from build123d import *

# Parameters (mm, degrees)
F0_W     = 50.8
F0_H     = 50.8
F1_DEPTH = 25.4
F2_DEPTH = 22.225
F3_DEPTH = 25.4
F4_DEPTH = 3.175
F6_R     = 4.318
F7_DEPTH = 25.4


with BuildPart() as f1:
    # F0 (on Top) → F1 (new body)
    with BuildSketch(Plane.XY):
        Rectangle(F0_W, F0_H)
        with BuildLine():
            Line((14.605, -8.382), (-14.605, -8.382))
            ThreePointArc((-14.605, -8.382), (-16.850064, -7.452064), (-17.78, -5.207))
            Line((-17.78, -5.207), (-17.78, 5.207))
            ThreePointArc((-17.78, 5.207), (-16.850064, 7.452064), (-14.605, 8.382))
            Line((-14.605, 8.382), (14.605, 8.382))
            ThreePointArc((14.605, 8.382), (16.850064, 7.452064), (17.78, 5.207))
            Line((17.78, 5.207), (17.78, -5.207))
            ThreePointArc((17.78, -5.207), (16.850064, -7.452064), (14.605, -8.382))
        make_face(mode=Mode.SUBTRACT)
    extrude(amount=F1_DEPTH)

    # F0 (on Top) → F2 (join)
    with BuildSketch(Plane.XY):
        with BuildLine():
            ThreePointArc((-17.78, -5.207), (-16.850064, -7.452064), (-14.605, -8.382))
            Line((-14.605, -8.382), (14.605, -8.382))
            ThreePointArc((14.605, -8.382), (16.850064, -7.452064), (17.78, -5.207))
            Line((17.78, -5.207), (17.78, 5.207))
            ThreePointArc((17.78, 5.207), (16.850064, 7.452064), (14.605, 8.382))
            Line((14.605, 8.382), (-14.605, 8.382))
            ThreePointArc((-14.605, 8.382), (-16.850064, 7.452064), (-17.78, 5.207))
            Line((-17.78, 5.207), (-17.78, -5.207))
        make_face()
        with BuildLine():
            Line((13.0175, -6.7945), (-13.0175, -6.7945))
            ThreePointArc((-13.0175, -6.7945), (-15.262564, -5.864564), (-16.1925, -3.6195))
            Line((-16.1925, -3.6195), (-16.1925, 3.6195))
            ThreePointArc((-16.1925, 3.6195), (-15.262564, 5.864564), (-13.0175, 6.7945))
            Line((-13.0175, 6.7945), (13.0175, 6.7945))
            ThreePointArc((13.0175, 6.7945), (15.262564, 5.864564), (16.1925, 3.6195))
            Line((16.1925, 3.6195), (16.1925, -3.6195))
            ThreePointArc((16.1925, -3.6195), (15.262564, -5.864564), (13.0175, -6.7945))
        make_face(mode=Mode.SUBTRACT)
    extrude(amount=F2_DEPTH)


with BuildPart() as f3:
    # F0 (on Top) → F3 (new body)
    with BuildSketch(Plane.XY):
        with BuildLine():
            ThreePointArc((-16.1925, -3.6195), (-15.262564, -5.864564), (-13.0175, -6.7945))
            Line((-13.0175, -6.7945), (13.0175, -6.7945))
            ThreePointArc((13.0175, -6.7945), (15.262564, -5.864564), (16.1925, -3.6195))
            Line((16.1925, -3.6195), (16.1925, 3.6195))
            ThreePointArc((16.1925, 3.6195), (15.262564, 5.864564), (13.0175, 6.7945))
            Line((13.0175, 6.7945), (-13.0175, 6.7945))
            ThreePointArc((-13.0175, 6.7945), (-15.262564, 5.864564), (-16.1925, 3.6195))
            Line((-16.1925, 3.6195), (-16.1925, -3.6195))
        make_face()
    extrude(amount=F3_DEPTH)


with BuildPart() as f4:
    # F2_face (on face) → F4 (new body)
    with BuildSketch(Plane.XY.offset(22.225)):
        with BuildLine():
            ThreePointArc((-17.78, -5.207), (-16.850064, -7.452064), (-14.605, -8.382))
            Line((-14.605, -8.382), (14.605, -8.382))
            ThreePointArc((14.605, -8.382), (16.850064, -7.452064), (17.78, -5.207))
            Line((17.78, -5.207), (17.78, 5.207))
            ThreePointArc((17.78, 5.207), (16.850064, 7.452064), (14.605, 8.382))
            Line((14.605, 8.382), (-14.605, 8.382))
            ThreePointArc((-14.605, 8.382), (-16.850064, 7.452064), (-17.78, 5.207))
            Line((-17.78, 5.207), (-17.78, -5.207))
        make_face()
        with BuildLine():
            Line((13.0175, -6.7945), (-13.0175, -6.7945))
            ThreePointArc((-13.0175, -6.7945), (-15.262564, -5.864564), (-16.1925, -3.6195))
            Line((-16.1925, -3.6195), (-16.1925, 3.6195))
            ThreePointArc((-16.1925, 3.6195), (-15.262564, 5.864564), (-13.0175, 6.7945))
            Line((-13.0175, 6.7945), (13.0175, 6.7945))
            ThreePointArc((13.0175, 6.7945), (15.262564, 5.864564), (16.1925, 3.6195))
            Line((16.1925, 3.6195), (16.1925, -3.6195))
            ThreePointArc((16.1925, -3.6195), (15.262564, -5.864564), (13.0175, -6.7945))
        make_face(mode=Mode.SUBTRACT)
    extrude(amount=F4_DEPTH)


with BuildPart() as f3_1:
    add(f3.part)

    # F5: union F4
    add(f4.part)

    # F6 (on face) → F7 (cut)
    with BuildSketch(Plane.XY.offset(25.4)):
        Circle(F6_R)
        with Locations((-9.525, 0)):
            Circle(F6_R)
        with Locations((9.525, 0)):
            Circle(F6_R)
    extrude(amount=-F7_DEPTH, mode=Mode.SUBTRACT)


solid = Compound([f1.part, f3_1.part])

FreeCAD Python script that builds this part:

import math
import FreeCAD as App
import Part
import Sketcher
from FreeCAD import Vector
Q = App.Units.Quantity


def add_polygon(sketch, points):
    """Adds a closed chain of lines whose ends are joined by coincident constraints."""
    first, n = sketch.GeometryCount, len(points)
    for a, b in zip(points, points[1:] + points[:1]):
        sketch.addGeometry(Part.LineSegment(App.Vector(*a, 0), App.Vector(*b, 0)), False)
    for i in range(n):
        sketch.addConstraint(Sketcher.Constraint("Coincident", first + i, 2, first + (i + 1) % n, 1))

doc = App.newDocument("Part")
body = doc.addObject("PartDesign::Body", "Body")

# Sketch on XY plane
sketch1 = doc.addObject("Sketcher::SketchObject", "Sketch")
body.addObject(sketch1)
sketch1.AttachmentSupport = (doc.XY_Plane, [""])
sketch1.MapMode = "FlatFace"
add_polygon(sketch1, [(-25.4, 25.4), (-25.4, -25.4), (25.4, -25.4), (25.4, 25.4)])  # lines 0-3
sketch1.addGeometry(Part.ArcOfCircle(Part.Circle(Vector(14.6, -5.2, 0), Vector(0, 0, 1), 3.2), math.radians(-90), math.radians(0)), False)  # 4
sketch1.addGeometry(Part.LineSegment(Vector(14.6, -8.4, 0), Vector(-14.6, -8.4, 0)), False)  # 5
sketch1.addGeometry(Part.ArcOfCircle(Part.Circle(Vector(-14.6, -5.2, 0), Vector(0, 0, 1), 3.2), math.radians(-180), math.radians(-90)), False)  # 6
sketch1.addGeometry(Part.LineSegment(Vector(-17.8, -5.2, 0), Vector(-17.8, 5.2, 0)), False)  # 7
sketch1.addGeometry(Part.ArcOfCircle(Part.Circle(Vector(-14.6, 5.2, 0), Vector(0, 0, 1), 3.2), math.radians(90), math.radians(180)), False)  # 8
sketch1.addGeometry(Part.LineSegment(Vector(-14.6, 8.4, 0), Vector(14.6, 8.4, 0)), False)  # 9
sketch1.addGeometry(Part.ArcOfCircle(Part.Circle(Vector(14.6, 5.2, 0), Vector(0, 0, 1), 3.2), math.radians(0), math.radians(90)), False)  # 10
sketch1.addGeometry(Part.LineSegment(Vector(17.8, 5.2, 0), Vector(17.8, -5.2, 0)), False)  # 11
sketch1.addConstraint(Sketcher.Constraint("Tangent", 4, 1, 5, 1))
sketch1.addConstraint(Sketcher.Constraint("Tangent", 5, 2, 6, 2))
sketch1.addConstraint(Sketcher.Constraint("Tangent", 6, 1, 7, 1))
sketch1.addConstraint(Sketcher.Constraint("Tangent", 7, 2, 8, 2))
sketch1.addConstraint(Sketcher.Constraint("Tangent", 8, 1, 9, 1))
sketch1.addConstraint(Sketcher.Constraint("Tangent", 9, 2, 10, 2))
sketch1.addConstraint(Sketcher.Constraint("Tangent", 10, 1, 11, 1))
sketch1.addConstraint(Sketcher.Constraint("Tangent", 11, 2, 4, 2))
sketch1.addConstraint(Sketcher.Constraint("Vertical", 0))
sketch1.addConstraint(Sketcher.Constraint("Horizontal", 1))
sketch1.addConstraint(Sketcher.Constraint("Vertical", 2))
sketch1.addConstraint(Sketcher.Constraint("Horizontal", 3))
sketch1.addConstraint(Sketcher.Constraint("Horizontal", 5))
sketch1.addConstraint(Sketcher.Constraint("Vertical", 7))
sketch1.addConstraint(Sketcher.Constraint("Horizontal", 9))
sketch1.addConstraint(Sketcher.Constraint("Vertical", 11))
sketch1.addConstraint(Sketcher.Constraint("Equal", 4, 6))
sketch1.addConstraint(Sketcher.Constraint("Equal", 6, 8))
sketch1.addConstraint(Sketcher.Constraint("Equal", 8, 10))
sketch1.addConstraint(Sketcher.Constraint("Symmetric", 4, 3, 8, 3, -1, 1))
sketch1.addConstraint(Sketcher.Constraint("Symmetric", 0, 2, 2, 2, -1, 1))
sketch1.addConstraint(Sketcher.Constraint("Equal", 3, 0))
sketch1.addConstraint(Sketcher.Constraint("DistanceX", 1, 1, 1, 2, Q("2 in")))
sketch1.addConstraint(Sketcher.Constraint("Radius", 4, Q("0.125 in")))
sketch1.addConstraint(Sketcher.Constraint("DistanceX", 5, 2, 5, 1, Q("1.15 in")))
sketch1.addConstraint(Sketcher.Constraint("DistanceY", 7, 1, 7, 2, Q("0.41 in")))
pad1 = doc.addObject("PartDesign::Pad", "Pad")
body.addObject(pad1)
pad1.Profile = sketch1
pad1.Length = Q("1 in")

# Sketch on XY plane
sketch2 = doc.addObject("Sketcher::SketchObject", "Sketch001")
body.addObject(sketch2)
sketch2.AttachmentSupport = (doc.XY_Plane, [""])
sketch2.MapMode = "FlatFace"
sketch2.addGeometry(Part.ArcOfCircle(Part.Circle(Vector(-14.6, -5.2, 0), Vector(0, 0, 1), 3.2), math.radians(-180), math.radians(-90)), False)
sketch2.addGeometry(Part.LineSegment(Vector(-14.6, -8.4, 0), Vector(14.6, -8.4, 0)), False)
sketch2.addGeometry(Part.ArcOfCircle(Part.Circle(Vector(14.6, -5.2, 0), Vector(0, 0, 1), 3.2), math.radians(-90), math.radians(0)), False)
sketch2.addGeometry(Part.LineSegment(Vector(17.8, -5.2, 0), Vector(17.8, 5.2, 0)), False)
sketch2.addGeometry(Part.ArcOfCircle(Part.Circle(Vector(14.6, 5.2, 0), Vector(0, 0, 1), 3.2), math.radians(0), math.radians(90)), False)
sketch2.addGeometry(Part.LineSegment(Vector(14.6, 8.4, 0), Vector(-14.6, 8.4, 0)), False)
sketch2.addGeometry(Part.ArcOfCircle(Part.Circle(Vector(-14.6, 5.2, 0), Vector(0, 0, 1), 3.2), math.radians(90), math.radians(180)), False)
sketch2.addGeometry(Part.LineSegment(Vector(-17.8, 5.2, 0), Vector(-17.8, -5.2, 0)), False)
sketch2.addGeometry(Part.ArcOfCircle(Part.Circle(Vector(13, -3.6, 0), Vector(0, 0, 1), 3.2), math.radians(-90), math.radians(0)), False)
sketch2.addGeometry(Part.LineSegment(Vector(13, -6.8, 0), Vector(-13, -6.8, 0)), False)
sketch2.addGeometry(Part.ArcOfCircle(Part.Circle(Vector(-13, -3.6, 0), Vector(0, 0, 1), 3.2), math.radians(-180), math.radians(-90)), False)
sketch2.addGeometry(Part.LineSegment(Vector(-16.2, -3.6, 0), Vector(-16.2, 3.6, 0)), False)
sketch2.addGeometry(Part.ArcOfCircle(Part.Circle(Vector(-13, 3.6, 0), Vector(0, 0, 1), 3.2), math.radians(90), math.radians(180)), False)
sketch2.addGeometry(Part.LineSegment(Vector(-13, 6.8, 0), Vector(13, 6.8, 0)), False)
sketch2.addGeometry(Part.ArcOfCircle(Part.Circle(Vector(13, 3.6, 0), Vector(0, 0, 1), 3.2), math.radians(0), math.radians(90)), False)
sketch2.addGeometry(Part.LineSegment(Vector(16.2, 3.6, 0), Vector(16.2, -3.6, 0)), False)
sketch2.addConstraint(Sketcher.Constraint("Tangent", 0, 2, 1, 1))
sketch2.addConstraint(Sketcher.Constraint("Tangent", 1, 2, 2, 1))
sketch2.addConstraint(Sketcher.Constraint("Tangent", 2, 2, 3, 1))
sketch2.addConstraint(Sketcher.Constraint("Tangent", 3, 2, 4, 1))
sketch2.addConstraint(Sketcher.Constraint("Tangent", 4, 2, 5, 1))
sketch2.addConstraint(Sketcher.Constraint("Tangent", 5, 2, 6, 1))
sketch2.addConstraint(Sketcher.Constraint("Tangent", 6, 2, 7, 1))
sketch2.addConstraint(Sketcher.Constraint("Tangent", 7, 2, 0, 1))
sketch2.addConstraint(Sketcher.Constraint("Tangent", 8, 1, 9, 1))
sketch2.addConstraint(Sketcher.Constraint("Tangent", 9, 2, 10, 2))
sketch2.addConstraint(Sketcher.Constraint("Tangent", 10, 1, 11, 1))
sketch2.addConstraint(Sketcher.Constraint("Tangent", 11, 2, 12, 2))
sketch2.addConstraint(Sketcher.Constraint("Tangent", 12, 1, 13, 1))
sketch2.addConstraint(Sketcher.Constraint("Tangent", 13, 2, 14, 2))
sketch2.addConstraint(Sketcher.Constraint("Tangent", 14, 1, 15, 1))
sketch2.addConstraint(Sketcher.Constraint("Tangent", 15, 2, 8, 2))
sketch2.addConstraint(Sketcher.Constraint("Horizontal", 1))
sketch2.addConstraint(Sketcher.Constraint("Vertical", 3))
sketch2.addConstraint(Sketcher.Constraint("Horizontal", 5))
sketch2.addConstraint(Sketcher.Constraint("Vertical", 7))
sketch2.addConstraint(Sketcher.Constraint("Horizontal", 9))
sketch2.addConstraint(Sketcher.Constraint("Vertical", 11))
sketch2.addConstraint(Sketcher.Constraint("Horizontal", 13))
sketch2.addConstraint(Sketcher.Constraint("Vertical", 15))
sketch2.addConstraint(Sketcher.Constraint("Equal", 0, 2))
sketch2.addConstraint(Sketcher.Constraint("Equal", 2, 4))
sketch2.addConstraint(Sketcher.Constraint("Equal", 4, 6))
sketch2.addConstraint(Sketcher.Constraint("Equal", 6, 8))
sketch2.addConstraint(Sketcher.Constraint("Equal", 8, 10))
sketch2.addConstraint(Sketcher.Constraint("Equal", 10, 12))
sketch2.addConstraint(Sketcher.Constraint("Equal", 12, 14))
sketch2.addConstraint(Sketcher.Constraint("Symmetric", 0, 3, 4, 3, -1, 1))
sketch2.addConstraint(Sketcher.Constraint("Symmetric", 8, 3, 12, 3, -1, 1))
sketch2.addConstraint(Sketcher.Constraint("Radius", 0, Q("0.125 in")))
sketch2.addConstraint(Sketcher.Constraint("DistanceX", 1, 1, 1, 2, Q("1.15 in")))
sketch2.addConstraint(Sketcher.Constraint("DistanceY", 3, 1, 3, 2, Q("0.41 in")))
sketch2.addConstraint(Sketcher.Constraint("DistanceX", 9, 2, 9, 1, Q("1.025 in")))
sketch2.addConstraint(Sketcher.Constraint("DistanceY", 11, 1, 11, 2, Q("0.285 in")))
pad2 = doc.addObject("PartDesign::Pad", "Pad001")
body.addObject(pad2)
pad2.Profile = sketch2
pad2.Length = Q("0.875 in")
body2 = doc.addObject("PartDesign::Body", "Body001")

# Sketch on XY plane
sketch3 = doc.addObject("Sketcher::SketchObject", "Sketch002")
body2.addObject(sketch3)
sketch3.AttachmentSupport = (doc.getObject("XY_Plane001"), [""])
sketch3.MapMode = "FlatFace"
sketch3.addGeometry(Part.ArcOfCircle(Part.Circle(Vector(-13, -3.6, 0), Vector(0, 0, 1), 3.2), math.radians(-180), math.radians(-90)), False)
sketch3.addGeometry(Part.LineSegment(Vector(-13, -6.8, 0), Vector(13, -6.8, 0)), False)
sketch3.addGeometry(Part.ArcOfCircle(Part.Circle(Vector(13, -3.6, 0), Vector(0, 0, 1), 3.2), math.radians(-90), math.radians(0)), False)
sketch3.addGeometry(Part.LineSegment(Vector(16.2, -3.6, 0), Vector(16.2, 3.6, 0)), False)
sketch3.addGeometry(Part.ArcOfCircle(Part.Circle(Vector(13, 3.6, 0), Vector(0, 0, 1), 3.2), math.radians(0), math.radians(90)), False)
sketch3.addGeometry(Part.LineSegment(Vector(13, 6.8, 0), Vector(-13, 6.8, 0)), False)
sketch3.addGeometry(Part.ArcOfCircle(Part.Circle(Vector(-13, 3.6, 0), Vector(0, 0, 1), 3.2), math.radians(90), math.radians(180)), False)
sketch3.addGeometry(Part.LineSegment(Vector(-16.2, 3.6, 0), Vector(-16.2, -3.6, 0)), False)
sketch3.addConstraint(Sketcher.Constraint("Tangent", 0, 2, 1, 1))
sketch3.addConstraint(Sketcher.Constraint("Tangent", 1, 2, 2, 1))
sketch3.addConstraint(Sketcher.Constraint("Tangent", 2, 2, 3, 1))
sketch3.addConstraint(Sketcher.Constraint("Tangent", 3, 2, 4, 1))
sketch3.addConstraint(Sketcher.Constraint("Tangent", 4, 2, 5, 1))
sketch3.addConstraint(Sketcher.Constraint("Tangent", 5, 2, 6, 1))
sketch3.addConstraint(Sketcher.Constraint("Tangent", 6, 2, 7, 1))
sketch3.addConstraint(Sketcher.Constraint("Tangent", 7, 2, 0, 1))
sketch3.addConstraint(Sketcher.Constraint("Horizontal", 1))
sketch3.addConstraint(Sketcher.Constraint("Vertical", 3))
sketch3.addConstraint(Sketcher.Constraint("Horizontal", 5))
sketch3.addConstraint(Sketcher.Constraint("Vertical", 7))
sketch3.addConstraint(Sketcher.Constraint("Equal", 0, 2))
sketch3.addConstraint(Sketcher.Constraint("Equal", 2, 4))
sketch3.addConstraint(Sketcher.Constraint("Equal", 4, 6))
sketch3.addConstraint(Sketcher.Constraint("Symmetric", 0, 3, 4, 3, -1, 1))
sketch3.addConstraint(Sketcher.Constraint("Radius", 0, Q("0.125 in")))
sketch3.addConstraint(Sketcher.Constraint("DistanceX", 1, 1, 1, 2, Q("1.025 in")))
sketch3.addConstraint(Sketcher.Constraint("DistanceY", 3, 1, 3, 2, Q("0.285 in")))
pad3 = doc.addObject("PartDesign::Pad", "Pad002")
body2.addObject(pad3)
pad3.Profile = sketch3
pad3.Length = Q("1 in")
body3 = doc.addObject("PartDesign::Body", "Body002")

# Sketch on XY plane
sketch4 = doc.addObject("Sketcher::SketchObject", "Sketch003")
body3.addObject(sketch4)
sketch4.AttachmentSupport = (doc.getObject("XY_Plane002"), [""])
sketch4.MapMode = "FlatFace"
sketch4.AttachmentOffset = App.Placement(Vector(0, 0, 0.875 * 25.4), App.Rotation())
sketch4.addGeometry(Part.ArcOfCircle(Part.Circle(Vector(-14.6, -5.2, 0), Vector(0, 0, 1), 3.2), math.radians(-180), math.radians(-90)), False)
sketch4.addGeometry(Part.LineSegment(Vector(-14.6, -8.4, 0), Vector(14.6, -8.4, 0)), False)
sketch4.addGeometry(Part.ArcOfCircle(Part.Circle(Vector(14.6, -5.2, 0), Vector(0, 0, 1), 3.2), math.radians(-90), math.radians(0)), False)
sketch4.addGeometry(Part.LineSegment(Vector(17.8, -5.2, 0), Vector(17.8, 5.2, 0)), False)
sketch4.addGeometry(Part.ArcOfCircle(Part.Circle(Vector(14.6, 5.2, 0), Vector(0, 0, 1), 3.2), math.radians(0), math.radians(90)), False)
sketch4.addGeometry(Part.LineSegment(Vector(14.6, 8.4, 0), Vector(-14.6, 8.4, 0)), False)
sketch4.addGeometry(Part.ArcOfCircle(Part.Circle(Vector(-14.6, 5.2, 0), Vector(0, 0, 1), 3.2), math.radians(90), math.radians(180)), False)
sketch4.addGeometry(Part.LineSegment(Vector(-17.8, 5.2, 0), Vector(-17.8, -5.2, 0)), False)
sketch4.addGeometry(Part.ArcOfCircle(Part.Circle(Vector(13, -3.6, 0), Vector(0, 0, 1), 3.2), math.radians(-90), math.radians(0)), False)
sketch4.addGeometry(Part.LineSegment(Vector(13, -6.8, 0), Vector(-13, -6.8, 0)), False)
sketch4.addGeometry(Part.ArcOfCircle(Part.Circle(Vector(-13, -3.6, 0), Vector(0, 0, 1), 3.2), math.radians(-180), math.radians(-90)), False)
sketch4.addGeometry(Part.LineSegment(Vector(-16.2, -3.6, 0), Vector(-16.2, 3.6, 0)), False)
sketch4.addGeometry(Part.ArcOfCircle(Part.Circle(Vector(-13, 3.6, 0), Vector(0, 0, 1), 3.2), math.radians(90), math.radians(180)), False)
sketch4.addGeometry(Part.LineSegment(Vector(-13, 6.8, 0), Vector(13, 6.8, 0)), False)
sketch4.addGeometry(Part.ArcOfCircle(Part.Circle(Vector(13, 3.6, 0), Vector(0, 0, 1), 3.2), math.radians(0), math.radians(90)), False)
sketch4.addGeometry(Part.LineSegment(Vector(16.2, 3.6, 0), Vector(16.2, -3.6, 0)), False)
sketch4.addConstraint(Sketcher.Constraint("Tangent", 0, 2, 1, 1))
sketch4.addConstraint(Sketcher.Constraint("Tangent", 1, 2, 2, 1))
sketch4.addConstraint(Sketcher.Constraint("Tangent", 2, 2, 3, 1))
sketch4.addConstraint(Sketcher.Constraint("Tangent", 3, 2, 4, 1))
sketch4.addConstraint(Sketcher.Constraint("Tangent", 4, 2, 5, 1))
sketch4.addConstraint(Sketcher.Constraint("Tangent", 5, 2, 6, 1))
sketch4.addConstraint(Sketcher.Constraint("Tangent", 6, 2, 7, 1))
sketch4.addConstraint(Sketcher.Constraint("Tangent", 7, 2, 0, 1))
sketch4.addConstraint(Sketcher.Constraint("Tangent", 8, 1, 9, 1))
sketch4.addConstraint(Sketcher.Constraint("Tangent", 9, 2, 10, 2))
sketch4.addConstraint(Sketcher.Constraint("Tangent", 10, 1, 11, 1))
sketch4.addConstraint(Sketcher.Constraint("Tangent", 11, 2, 12, 2))
sketch4.addConstraint(Sketcher.Constraint("Tangent", 12, 1, 13, 1))
sketch4.addConstraint(Sketcher.Constraint("Tangent", 13, 2, 14, 2))
sketch4.addConstraint(Sketcher.Constraint("Tangent", 14, 1, 15, 1))
sketch4.addConstraint(Sketcher.Constraint("Tangent", 15, 2, 8, 2))
sketch4.addConstraint(Sketcher.Constraint("Horizontal", 1))
sketch4.addConstraint(Sketcher.Constraint("Vertical", 3))
sketch4.addConstraint(Sketcher.Constraint("Horizontal", 5))
sketch4.addConstraint(Sketcher.Constraint("Vertical", 7))
sketch4.addConstraint(Sketcher.Constraint("Horizontal", 9))
sketch4.addConstraint(Sketcher.Constraint("Vertical", 11))
sketch4.addConstraint(Sketcher.Constraint("Horizontal", 13))
sketch4.addConstraint(Sketcher.Constraint("Vertical", 15))
sketch4.addConstraint(Sketcher.Constraint("Equal", 0, 2))
sketch4.addConstraint(Sketcher.Constraint("Equal", 2, 4))
sketch4.addConstraint(Sketcher.Constraint("Equal", 4, 6))
sketch4.addConstraint(Sketcher.Constraint("Equal", 6, 8))
sketch4.addConstraint(Sketcher.Constraint("Equal", 8, 10))
sketch4.addConstraint(Sketcher.Constraint("Equal", 10, 12))
sketch4.addConstraint(Sketcher.Constraint("Equal", 12, 14))
sketch4.addConstraint(Sketcher.Constraint("Symmetric", 0, 3, 4, 3, -1, 1))
sketch4.addConstraint(Sketcher.Constraint("Symmetric", 8, 3, 12, 3, -1, 1))
sketch4.addConstraint(Sketcher.Constraint("Radius", 0, Q("0.125 in")))
sketch4.addConstraint(Sketcher.Constraint("DistanceX", 1, 1, 1, 2, Q("1.15 in")))
sketch4.addConstraint(Sketcher.Constraint("DistanceY", 3, 1, 3, 2, Q("0.41 in")))
sketch4.addConstraint(Sketcher.Constraint("DistanceX", 9, 2, 9, 1, Q("1.025 in")))
sketch4.addConstraint(Sketcher.Constraint("DistanceY", 11, 1, 11, 2, Q("0.285 in")))
pad4 = doc.addObject("PartDesign::Pad", "Pad003")
body3.addObject(pad4)
pad4.Profile = sketch4
pad4.Length = Q("0.125 in")
doc.recompute()

boolean = doc.addObject("PartDesign::Boolean", "Boolean")
body2.addObject(boolean)
boolean.Type = "Fuse"
boolean.addObjects([body3])

# Sketch on XY plane
sketch5 = doc.addObject("Sketcher::SketchObject", "Sketch004")
body2.addObject(sketch5)
sketch5.AttachmentSupport = (doc.getObject("XY_Plane001"), [""])
sketch5.MapMode = "FlatFace"
sketch5.AttachmentOffset = App.Placement(Vector(0, 0, 1 * 25.4), App.Rotation())
sketch5.addGeometry(Part.Circle(Vector(0, 0, 0), Vector(0, 0, 1), 4.3), False)
sketch5.addGeometry(Part.Circle(Vector(-9.5, 0, 0), Vector(0, 0, 1), 4.3), False)
sketch5.addGeometry(Part.Circle(Vector(9.5, 0, 0), Vector(0, 0, 1), 4.3), False)
sketch5.addConstraint(Sketcher.Constraint("Coincident", 0, 3, -1, 1))
sketch5.addConstraint(Sketcher.Constraint("Equal", 0, 1))
sketch5.addConstraint(Sketcher.Constraint("Equal", 1, 2))
sketch5.addConstraint(Sketcher.Constraint("Symmetric", 1, 3, 2, 3, -1, 1))
sketch5.addConstraint(Sketcher.Constraint("PointOnObject", 1, 3, -1))
sketch5.addConstraint(Sketcher.Constraint("Diameter", 0, Q("0.34 in")))
sketch5.addConstraint(Sketcher.Constraint("DistanceX", 1, 3, 2, 3, Q("0.75 in")))
pocket1 = doc.addObject("PartDesign::Pocket", "Pocket")
body2.addObject(pocket1)
pocket1.Profile = sketch5
pocket1.Length = Q("1 in")

doc.recompute()
